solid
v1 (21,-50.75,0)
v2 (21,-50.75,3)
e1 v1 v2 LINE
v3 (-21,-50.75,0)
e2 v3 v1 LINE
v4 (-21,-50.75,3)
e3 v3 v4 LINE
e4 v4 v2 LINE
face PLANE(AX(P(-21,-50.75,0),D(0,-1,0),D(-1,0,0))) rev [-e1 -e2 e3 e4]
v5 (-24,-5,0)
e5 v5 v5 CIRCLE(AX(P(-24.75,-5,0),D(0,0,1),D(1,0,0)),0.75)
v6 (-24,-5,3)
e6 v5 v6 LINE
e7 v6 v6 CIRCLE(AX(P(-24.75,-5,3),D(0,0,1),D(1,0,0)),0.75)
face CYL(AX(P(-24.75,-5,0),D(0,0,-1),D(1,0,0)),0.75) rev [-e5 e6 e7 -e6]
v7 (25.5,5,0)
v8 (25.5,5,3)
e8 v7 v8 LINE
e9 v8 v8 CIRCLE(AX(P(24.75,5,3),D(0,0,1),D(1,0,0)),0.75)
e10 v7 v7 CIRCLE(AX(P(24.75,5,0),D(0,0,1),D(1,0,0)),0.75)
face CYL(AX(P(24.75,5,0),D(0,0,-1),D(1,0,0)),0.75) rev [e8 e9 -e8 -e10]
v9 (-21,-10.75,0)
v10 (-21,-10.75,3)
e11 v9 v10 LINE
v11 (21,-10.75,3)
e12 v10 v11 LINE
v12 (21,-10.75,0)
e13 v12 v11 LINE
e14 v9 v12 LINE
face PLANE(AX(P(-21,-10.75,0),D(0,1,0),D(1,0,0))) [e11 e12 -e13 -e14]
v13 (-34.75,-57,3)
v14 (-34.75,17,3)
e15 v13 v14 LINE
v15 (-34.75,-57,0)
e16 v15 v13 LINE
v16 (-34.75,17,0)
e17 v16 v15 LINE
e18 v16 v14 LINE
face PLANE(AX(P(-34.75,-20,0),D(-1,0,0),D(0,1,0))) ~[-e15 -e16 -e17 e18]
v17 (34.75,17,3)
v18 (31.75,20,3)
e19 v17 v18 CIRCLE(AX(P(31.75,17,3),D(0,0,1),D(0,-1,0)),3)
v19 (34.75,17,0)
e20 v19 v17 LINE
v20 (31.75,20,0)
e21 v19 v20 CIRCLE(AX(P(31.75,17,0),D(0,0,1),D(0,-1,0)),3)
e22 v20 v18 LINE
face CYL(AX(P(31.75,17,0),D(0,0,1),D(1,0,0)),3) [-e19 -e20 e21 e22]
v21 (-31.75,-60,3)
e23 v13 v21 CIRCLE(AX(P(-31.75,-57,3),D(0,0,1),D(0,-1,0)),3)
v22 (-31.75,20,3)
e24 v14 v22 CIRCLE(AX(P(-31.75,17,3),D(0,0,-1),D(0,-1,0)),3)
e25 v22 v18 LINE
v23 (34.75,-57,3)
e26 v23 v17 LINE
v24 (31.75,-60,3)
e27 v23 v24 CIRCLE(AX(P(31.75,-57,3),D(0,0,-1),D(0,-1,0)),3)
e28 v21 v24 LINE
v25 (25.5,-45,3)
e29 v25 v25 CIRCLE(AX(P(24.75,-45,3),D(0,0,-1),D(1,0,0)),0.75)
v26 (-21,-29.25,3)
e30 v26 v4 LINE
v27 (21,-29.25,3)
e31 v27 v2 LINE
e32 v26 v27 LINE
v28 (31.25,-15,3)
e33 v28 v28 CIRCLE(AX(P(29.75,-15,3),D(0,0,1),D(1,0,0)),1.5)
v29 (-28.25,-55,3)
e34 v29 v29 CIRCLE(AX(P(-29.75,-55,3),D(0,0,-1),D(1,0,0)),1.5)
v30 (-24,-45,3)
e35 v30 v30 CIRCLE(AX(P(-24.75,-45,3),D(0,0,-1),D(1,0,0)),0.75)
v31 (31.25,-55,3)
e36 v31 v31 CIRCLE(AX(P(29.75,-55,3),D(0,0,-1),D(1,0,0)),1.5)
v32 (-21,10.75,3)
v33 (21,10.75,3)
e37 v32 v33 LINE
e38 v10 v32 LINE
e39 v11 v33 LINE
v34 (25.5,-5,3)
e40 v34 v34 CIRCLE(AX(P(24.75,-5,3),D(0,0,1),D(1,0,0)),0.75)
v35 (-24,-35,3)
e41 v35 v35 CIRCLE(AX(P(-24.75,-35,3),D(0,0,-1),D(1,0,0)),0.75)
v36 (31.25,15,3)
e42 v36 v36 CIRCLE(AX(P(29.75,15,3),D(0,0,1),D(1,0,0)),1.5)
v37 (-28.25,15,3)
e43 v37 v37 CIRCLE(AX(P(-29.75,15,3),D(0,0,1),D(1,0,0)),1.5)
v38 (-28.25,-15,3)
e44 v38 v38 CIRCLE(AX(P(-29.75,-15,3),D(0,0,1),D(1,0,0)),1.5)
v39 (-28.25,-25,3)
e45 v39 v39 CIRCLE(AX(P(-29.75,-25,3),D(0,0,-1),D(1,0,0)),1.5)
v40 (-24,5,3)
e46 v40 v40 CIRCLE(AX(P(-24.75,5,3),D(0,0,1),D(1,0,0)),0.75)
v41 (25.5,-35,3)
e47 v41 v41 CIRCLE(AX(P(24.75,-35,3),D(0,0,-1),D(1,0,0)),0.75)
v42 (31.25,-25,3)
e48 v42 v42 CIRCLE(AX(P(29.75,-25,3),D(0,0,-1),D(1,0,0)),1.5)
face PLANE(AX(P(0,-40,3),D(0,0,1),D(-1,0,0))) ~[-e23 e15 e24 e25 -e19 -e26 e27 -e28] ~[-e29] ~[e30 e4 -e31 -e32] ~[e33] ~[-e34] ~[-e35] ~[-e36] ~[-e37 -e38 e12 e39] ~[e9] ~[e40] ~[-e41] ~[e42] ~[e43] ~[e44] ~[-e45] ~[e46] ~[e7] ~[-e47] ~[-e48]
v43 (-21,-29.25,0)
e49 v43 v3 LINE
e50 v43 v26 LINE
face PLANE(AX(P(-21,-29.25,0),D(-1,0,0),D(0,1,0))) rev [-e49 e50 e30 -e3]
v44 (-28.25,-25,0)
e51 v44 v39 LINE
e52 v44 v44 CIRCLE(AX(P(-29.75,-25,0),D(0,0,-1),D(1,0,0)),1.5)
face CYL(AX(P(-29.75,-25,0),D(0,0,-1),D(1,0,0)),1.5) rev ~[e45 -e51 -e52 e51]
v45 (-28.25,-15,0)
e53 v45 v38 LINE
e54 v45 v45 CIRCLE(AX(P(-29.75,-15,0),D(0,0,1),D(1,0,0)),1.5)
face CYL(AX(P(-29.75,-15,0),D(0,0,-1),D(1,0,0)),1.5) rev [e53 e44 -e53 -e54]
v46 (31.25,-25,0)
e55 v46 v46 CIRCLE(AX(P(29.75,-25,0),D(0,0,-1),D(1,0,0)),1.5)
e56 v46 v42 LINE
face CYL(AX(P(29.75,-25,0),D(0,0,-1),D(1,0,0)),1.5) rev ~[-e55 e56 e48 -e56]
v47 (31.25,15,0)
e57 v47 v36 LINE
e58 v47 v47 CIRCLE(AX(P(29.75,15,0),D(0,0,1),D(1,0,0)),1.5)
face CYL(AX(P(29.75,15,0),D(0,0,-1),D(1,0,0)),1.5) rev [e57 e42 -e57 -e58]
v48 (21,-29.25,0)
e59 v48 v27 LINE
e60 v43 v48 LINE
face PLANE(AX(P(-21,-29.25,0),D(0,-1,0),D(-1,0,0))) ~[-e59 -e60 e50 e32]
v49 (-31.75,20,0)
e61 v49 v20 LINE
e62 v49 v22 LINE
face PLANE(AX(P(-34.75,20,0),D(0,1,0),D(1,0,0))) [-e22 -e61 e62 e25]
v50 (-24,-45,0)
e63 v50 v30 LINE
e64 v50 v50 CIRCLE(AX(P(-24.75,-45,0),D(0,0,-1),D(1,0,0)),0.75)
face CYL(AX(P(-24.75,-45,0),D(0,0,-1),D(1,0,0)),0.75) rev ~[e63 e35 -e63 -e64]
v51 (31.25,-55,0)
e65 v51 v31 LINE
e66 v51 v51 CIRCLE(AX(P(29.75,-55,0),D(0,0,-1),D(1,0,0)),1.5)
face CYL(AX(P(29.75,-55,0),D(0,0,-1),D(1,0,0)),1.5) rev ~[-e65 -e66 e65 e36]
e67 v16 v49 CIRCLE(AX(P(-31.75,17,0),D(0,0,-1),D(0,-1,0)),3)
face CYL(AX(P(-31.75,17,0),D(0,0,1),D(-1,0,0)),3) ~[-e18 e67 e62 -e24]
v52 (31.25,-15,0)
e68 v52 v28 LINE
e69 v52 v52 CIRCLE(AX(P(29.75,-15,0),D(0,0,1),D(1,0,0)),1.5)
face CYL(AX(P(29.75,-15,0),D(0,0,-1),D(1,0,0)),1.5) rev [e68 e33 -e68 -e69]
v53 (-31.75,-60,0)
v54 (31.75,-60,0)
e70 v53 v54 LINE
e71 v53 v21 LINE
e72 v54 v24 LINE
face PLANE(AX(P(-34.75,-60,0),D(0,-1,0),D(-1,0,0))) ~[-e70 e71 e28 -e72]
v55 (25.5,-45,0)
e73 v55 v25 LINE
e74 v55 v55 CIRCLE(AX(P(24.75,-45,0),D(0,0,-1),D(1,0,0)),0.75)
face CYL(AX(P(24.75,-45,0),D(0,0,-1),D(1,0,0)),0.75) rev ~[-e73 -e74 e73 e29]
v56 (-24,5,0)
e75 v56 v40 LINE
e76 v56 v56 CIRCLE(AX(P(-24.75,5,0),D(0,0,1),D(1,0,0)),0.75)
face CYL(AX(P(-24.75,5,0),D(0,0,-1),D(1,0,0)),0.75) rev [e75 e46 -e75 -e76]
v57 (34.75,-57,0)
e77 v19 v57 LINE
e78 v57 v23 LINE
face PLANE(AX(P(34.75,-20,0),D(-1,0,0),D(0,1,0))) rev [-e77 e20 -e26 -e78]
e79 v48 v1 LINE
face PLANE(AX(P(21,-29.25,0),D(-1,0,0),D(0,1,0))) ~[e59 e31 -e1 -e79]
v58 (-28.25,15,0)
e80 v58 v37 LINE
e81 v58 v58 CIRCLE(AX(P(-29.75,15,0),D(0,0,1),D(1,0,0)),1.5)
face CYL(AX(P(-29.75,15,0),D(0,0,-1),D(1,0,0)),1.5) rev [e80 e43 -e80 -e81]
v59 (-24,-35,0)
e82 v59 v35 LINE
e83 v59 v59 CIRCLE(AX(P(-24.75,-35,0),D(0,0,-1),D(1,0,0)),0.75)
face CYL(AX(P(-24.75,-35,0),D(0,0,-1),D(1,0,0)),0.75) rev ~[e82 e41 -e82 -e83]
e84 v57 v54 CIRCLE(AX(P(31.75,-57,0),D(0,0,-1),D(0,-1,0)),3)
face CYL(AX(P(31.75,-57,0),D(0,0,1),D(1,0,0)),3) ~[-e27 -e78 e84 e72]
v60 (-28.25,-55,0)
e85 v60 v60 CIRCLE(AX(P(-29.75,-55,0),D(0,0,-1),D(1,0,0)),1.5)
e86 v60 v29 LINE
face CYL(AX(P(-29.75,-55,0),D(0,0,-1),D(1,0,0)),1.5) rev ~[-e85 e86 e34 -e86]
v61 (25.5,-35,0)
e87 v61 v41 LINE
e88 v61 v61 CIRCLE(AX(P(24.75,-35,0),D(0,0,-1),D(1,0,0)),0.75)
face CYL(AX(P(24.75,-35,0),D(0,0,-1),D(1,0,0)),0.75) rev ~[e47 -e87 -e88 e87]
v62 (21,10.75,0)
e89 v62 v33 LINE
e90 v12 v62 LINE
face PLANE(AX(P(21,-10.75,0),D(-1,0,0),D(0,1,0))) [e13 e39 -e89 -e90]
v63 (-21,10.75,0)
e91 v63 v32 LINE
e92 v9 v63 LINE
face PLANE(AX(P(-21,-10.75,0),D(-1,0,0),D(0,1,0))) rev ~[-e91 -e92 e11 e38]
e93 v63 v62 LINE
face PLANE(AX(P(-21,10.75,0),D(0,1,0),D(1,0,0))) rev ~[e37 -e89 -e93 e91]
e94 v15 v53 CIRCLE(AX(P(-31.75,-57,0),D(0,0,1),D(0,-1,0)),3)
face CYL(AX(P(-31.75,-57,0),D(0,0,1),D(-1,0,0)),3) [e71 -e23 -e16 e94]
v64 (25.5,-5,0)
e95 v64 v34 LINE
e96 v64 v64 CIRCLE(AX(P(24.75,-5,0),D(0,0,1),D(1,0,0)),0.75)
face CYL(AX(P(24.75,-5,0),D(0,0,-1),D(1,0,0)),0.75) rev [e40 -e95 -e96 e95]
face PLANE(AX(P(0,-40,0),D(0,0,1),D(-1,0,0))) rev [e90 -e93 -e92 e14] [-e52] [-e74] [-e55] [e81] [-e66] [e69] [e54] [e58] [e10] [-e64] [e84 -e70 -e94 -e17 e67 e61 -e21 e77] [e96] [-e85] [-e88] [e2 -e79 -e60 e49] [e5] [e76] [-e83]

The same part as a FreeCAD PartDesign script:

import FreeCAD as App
import Part
import Sketcher


def edges_at(feature, points):
    """Names of the edges that pass closest to the given points."""
    edges = feature.Shape.Edges
    near = lambda p: min(range(len(edges)), key=lambda i: edges[i].distToShape(Part.Vertex(*p))[0])
    return sorted({f"Edge{near(p) + 1}" for p in points})


def add_polygon(sketch, points):
    """Adds a closed chain of lines whose ends are joined by coincident constraints."""
    first, n = sketch.GeometryCount, len(points)
    for a, b in zip(points, points[1:] + points[:1]):
        sketch.addGeometry(Part.LineSegment(App.Vector(*a, 0), App.Vector(*b, 0)), False)
    for i in range(n):
        sketch.addConstraint(Sketcher.Constraint("Coincident", first + i, 2, first + (i + 1) % n, 1))

doc = App.newDocument("Part")
body = doc.addObject("PartDesign::Body", "Body")

# Sketch on XY plane
sketch1 = body.newObject("Sketcher::SketchObject", "Sketch")
sketch1.AttachmentSupport = (doc.getObject("XY_Plane"), [""])
sketch1.MapMode = "FlatFace"
add_polygon(sketch1, [(-34.8, 20), (-34.8, -20), (34.8, -20), (34.8, 20)])  # lines 0-3
sketch1.addGeometry(Part.Circle(App.Vector(-29.8, -15, 0), App.Vector(0, 0, 1), 1.5), False)  # 4
sketch1.addGeometry(Part.Circle(App.Vector(-24.8, -5, 0), App.Vector(0, 0, 1), 0.8), False)  # 5
sketch1.addGeometry(Part.Circle(App.Vector(29.8, -15, 0), App.Vector(0, 0, 1), 1.5), False)  # 6
sketch1.addGeometry(Part.Circle(App.Vector(24.8, -5, 0), App.Vector(0, 0, 1), 0.8), False)  # 7
sketch1.addGeometry(Part.Circle(App.Vector(-24.8, 5, 0), App.Vector(0, 0, 1), 0.8), False)  # 8
sketch1.addGeometry(Part.Circle(App.Vector(-29.8, 15, 0), App.Vector(0, 0, 1), 1.5), False)  # 9
add_polygon(sketch1, [(21, -10.8), (-21, -10.8), (-21, 10.8), (21, 10.8)])  # lines 10-13
sketch1.addGeometry(Part.Circle(App.Vector(24.8, 5, 0), App.Vector(0, 0, 1), 0.8), False)  # 14
sketch1.addGeometry(Part.Circle(App.Vector(29.8, 15, 0), App.Vector(0, 0, 1), 1.5), False)  # 15
sketch1.addConstraint(Sketcher.Constraint("Vertical", 0))
sketch1.addConstraint(Sketcher.Constraint("Horizontal", 1))
sketch1.addConstraint(Sketcher.Constraint("Vertical", 2))
sketch1.addConstraint(Sketcher.Constraint("Horizontal", 3))
sketch1.addConstraint(Sketcher.Constraint("Horizontal", 10))
sketch1.addConstraint(Sketcher.Constraint("Vertical", 11))
sketch1.addConstraint(Sketcher.Constraint("Horizontal", 12))
sketch1.addConstraint(Sketcher.Constraint("Vertical", 13))
sketch1.addConstraint(Sketcher.Constraint("Equal", 4, 6))
sketch1.addConstraint(Sketcher.Constraint("Equal", 5, 7))
sketch1.addConstraint(Sketcher.Constraint("Equal", 7, 8))
sketch1.addConstraint(Sketcher.Constraint("Equal", 6, 9))
sketch1.addConstraint(Sketcher.Constraint("Equal", 8, 14))
sketch1.addConstraint(Sketcher.Constraint("Equal", 9, 15))
sketch1.addConstraint(Sketcher.Constraint("Symmetric", 7, 3, 8, 3, -1, 1))
sketch1.addConstraint(Sketcher.Constraint("Symmetric", 6, 3, 9, 3, -1, 1))
sketch1.addConstraint(Sketcher.Constraint("Symmetric", 5, 3, 14, 3, -1, 1))
sketch1.addConstraint(Sketcher.Constraint("Symmetric", 4, 3, 15, 3, -1, 1))
sketch1.addConstraint(Sketcher.Constraint("Symmetric", 0, 2, 2, 2, -1, 1))
sketch1.addConstraint(Sketcher.Constraint("Symmetric", 10, 2, 12, 2, -1, 1))
sketch1.addConstraint(Sketcher.Constraint("Symmetric", 4, 3, 6, 3, -2))
sketch1.addConstraint(Sketcher.Constraint("Symmetric", 5, 3, 7, 3, -2))
sketch1.addConstraint(Sketcher.Constraint("Diameter", 4, 3.0))
sketch1.addConstraint(Sketcher.Constraint("Diameter", 5, 1.5))
sketch1.addConstraint(Sketcher.Constraint("DistanceX", 10, 2, 10, 1, 42.0))
sketch1.addConstraint(Sketcher.Constraint("DistanceY", 0, 2, 0, 1, 40.0))
sketch1.addConstraint(Sketcher.Constraint("DistanceX", 1, 1, 1, 2, 69.5))
sketch1.addConstraint(Sketcher.Constraint("DistanceY", 11, 1, 11, 2, 21.5))
sketch1.addConstraint(Sketcher.Constraint("DistanceY", 4, 3, -1, 1, 15.0))
sketch1.addConstraint(Sketcher.Constraint("DistanceY", 5, 3, -1, 1, 5.0))
sketch1.addConstraint(Sketcher.Constraint("DistanceX", 4, 3, 5, 3, 5.0))
sketch1.addConstraint(Sketcher.Constraint("DistanceX", 0, 2, 4, 3, 5.0))
pad1 = body.newObject("PartDesign::Pad", "Pad")
pad1.Profile = sketch1
pad1.Length = 3
body2 = doc.addObject("PartDesign::Body", "Body001")
doc.recompute()

body2.BaseFeature = body
doc.recompute()

mirroring = doc.addObject("Part::Mirroring", "Mirroring")
mirroring.Source = body
mirroring.Base = App.Vector(0, -20, 1.5)
mirroring.Normal = App.Vector(0, -1, 0)
body3 = doc.addObject("PartDesign::Body", "Body002")
body3.BaseFeature = mirroring
boolean = body2.newObject("PartDesign::Boolean", "Boolean")
boolean.Type = "Fuse"
boolean.addObjects([body3])
doc.recompute()

fillet = body2.newObject("PartDesign::Fillet", "Fillet")
fillet.Base = (boolean, edges_at(boolean, [
    (-34.75, -60, 1.5),
    (34.75, -60, 1.5),
    (34.75, 20, 1.5),
    (-34.75, 20, 1.5),
]))
fillet.Radius = 3
mirroring.Visibility = False

doc.recompute()
